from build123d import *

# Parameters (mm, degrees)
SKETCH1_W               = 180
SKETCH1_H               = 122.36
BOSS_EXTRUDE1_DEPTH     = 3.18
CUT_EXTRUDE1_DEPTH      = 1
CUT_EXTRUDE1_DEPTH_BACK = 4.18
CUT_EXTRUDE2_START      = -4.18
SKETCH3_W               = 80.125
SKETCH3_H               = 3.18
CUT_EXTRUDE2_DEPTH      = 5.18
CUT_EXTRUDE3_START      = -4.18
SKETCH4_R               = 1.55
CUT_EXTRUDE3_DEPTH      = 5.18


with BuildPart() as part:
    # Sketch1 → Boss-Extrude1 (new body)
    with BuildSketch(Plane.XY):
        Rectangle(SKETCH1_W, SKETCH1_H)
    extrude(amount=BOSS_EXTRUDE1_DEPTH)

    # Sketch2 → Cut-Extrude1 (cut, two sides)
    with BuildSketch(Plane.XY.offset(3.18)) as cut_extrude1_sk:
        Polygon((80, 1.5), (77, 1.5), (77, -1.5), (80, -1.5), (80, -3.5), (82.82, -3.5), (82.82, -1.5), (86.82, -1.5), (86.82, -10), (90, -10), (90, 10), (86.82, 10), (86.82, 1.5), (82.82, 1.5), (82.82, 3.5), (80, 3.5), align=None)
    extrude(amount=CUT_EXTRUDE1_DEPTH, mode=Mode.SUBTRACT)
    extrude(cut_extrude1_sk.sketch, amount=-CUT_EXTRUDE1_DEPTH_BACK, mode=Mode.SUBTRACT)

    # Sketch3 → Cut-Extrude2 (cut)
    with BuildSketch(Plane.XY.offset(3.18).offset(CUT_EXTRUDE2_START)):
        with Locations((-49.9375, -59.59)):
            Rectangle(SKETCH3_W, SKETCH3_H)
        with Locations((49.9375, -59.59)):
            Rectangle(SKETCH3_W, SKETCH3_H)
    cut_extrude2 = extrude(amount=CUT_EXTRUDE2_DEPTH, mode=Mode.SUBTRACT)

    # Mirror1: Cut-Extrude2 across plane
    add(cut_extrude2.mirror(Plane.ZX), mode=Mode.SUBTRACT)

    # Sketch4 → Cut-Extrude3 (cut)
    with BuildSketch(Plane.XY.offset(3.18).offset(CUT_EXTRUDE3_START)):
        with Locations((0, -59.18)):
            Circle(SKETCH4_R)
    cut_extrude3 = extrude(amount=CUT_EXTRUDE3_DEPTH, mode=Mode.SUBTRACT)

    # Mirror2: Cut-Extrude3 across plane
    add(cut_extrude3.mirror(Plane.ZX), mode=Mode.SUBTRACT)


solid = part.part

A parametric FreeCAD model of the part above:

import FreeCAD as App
import Part
import Sketcher

V = App.Vector
Q = App.Units.Quantity


def add_polygon(sketch, points):
    """Adds a closed chain of lines whose ends are joined by coincident constraints."""
    first, n = sketch.GeometryCount, len(points)
    for a, b in zip(points, points[1:] + points[:1]):
        sketch.addGeometry(Part.LineSegment(App.Vector(*a, 0), App.Vector(*b, 0)), False)
    for i in range(n):
        sketch.addConstraint(Sketcher.Constraint("Coincident", first + i, 2, first + (i + 1) % n, 1))

doc = App.newDocument("Part")
body = doc.addObject("PartDesign::Body", "Body")

sketch1 = body.newObject("Sketcher::SketchObject", "Sketch")
sketch1.AttachmentSupport = (doc.getObject("XY_Plane"), [""])
sketch1.MapMode = "FlatFace"
add_polygon(sketch1, [(-90, 61.18), (-90, -61.18), (90, -61.18), (90, 61.18)])
sketch1.addConstraint([
    Sketcher.Constraint("Vertical", 0),
    Sketcher.Constraint("Horizontal", 1),
    Sketcher.Constraint("Vertical", 2),
    Sketcher.Constraint("Horizontal", 3),
    Sketcher.Constraint("Symmetric", 0, 2, 2, 2, -1, 1),
    Sketcher.Constraint("DistanceX", 1, 1, 1, 2, Q("180 mm")),
    Sketcher.Constraint("DistanceY", 0, 2, 0, 1, Q("122.36 mm")),
])
pad1 = body.newObject("PartDesign::Pad", "Pad")
pad1.Profile = sketch1
pad1.Length = 3.18

sketch2 = body.newObject("Sketcher::SketchObject", "Sketch001")
sketch2.AttachmentSupport = (doc.getObject("XY_Plane"), [""])
sketch2.MapMode = "FlatFace"
sketch2.AttachmentOffset = App.Placement(V(0, 0, 3.18), App.Rotation())
add_polygon(sketch2, [(80, 1.5), (77, 1.5), (77, -1.5), (80, -1.5), (80, -3.5), (82.82, -3.5), (82.82, -1.5), (86.82, -1.5), (86.82, -10), (90, -10), (90, 10), (86.82, 10), (86.82, 1.5), (82.82, 1.5), (82.82, 3.5), (80, 3.5)])
sketch2.addConstraint([
    Sketcher.Constraint("Horizontal", 0),
    Sketcher.Constraint("Vertical", 1),
    Sketcher.Constraint("Horizontal", 2),
    Sketcher.Constraint("Vertical", 3),
    Sketcher.Constraint("Horizontal", 4),
    Sketcher.Constraint("Vertical", 5),
    Sketcher.Constraint("Horizontal", 6),
    Sketcher.Constraint("Vertical", 7),
    Sketcher.Constraint("Horizontal", 8),
    Sketcher.Constraint("Vertical", 9),
    Sketcher.Constraint("Horizontal", 10),
    Sketcher.Constraint("Vertical", 11),
    Sketcher.Constraint("Horizontal", 12),
    Sketcher.Constraint("Vertical", 13),
    Sketcher.Constraint("Horizontal", 14),
    Sketcher.Constraint("Vertical", 15),
    Sketcher.Constraint("Symmetric", 7, 2, 10, 2, -1),
    Sketcher.Constraint("Symmetric", 5, 2, 12, 2, -1),
    Sketcher.Constraint("Symmetric", 3, 2, 14, 2, -1),
    Sketcher.Constraint("Horizontal", 2, 2, 5, 2),
    Sketcher.Constraint("Horizontal", 0, 2, 11, 2),
    Sketcher.Constraint("Equal", 2, 1),
    Sketcher.Constraint("DistanceX", 0, 2, 0, 1, Q("3 mm")),
    Sketcher.Constraint("DistanceX", 6, 1, 6, 2, Q("4 mm")),
    Sketcher.Constraint("DistanceY", 3, 2, 3, 1, Q("2 mm")),
    Sketcher.Constraint("DistanceY", 9, 1, 9, 2, Q("20 mm")),
    Sketcher.Constraint("DistanceX", -1, 1, 0, 2, Q("77 mm")),
    Sketcher.Constraint("DistanceX", -1, 1, 8, 2, Q("90 mm")),
    Sketcher.Constraint("DistanceX", 4, 1, 4, 2, Q("2.82 mm")),
])
pocket1 = body.newObject("PartDesign::Pocket", "Pocket")
pocket1.Profile = sketch2
pocket1.Type = "ThroughAll"
pocket1.Midplane = True

sketch3 = body.newObject("Sketcher::SketchObject", "Sketch002")
sketch3.AttachmentSupport = (doc.getObject("XY_Plane"), [""])
sketch3.MapMode = "FlatFace"
sketch3.AttachmentOffset = App.Placement(V(0, 0, -1), App.Rotation())
add_polygon(sketch3, [(-90, -58), (-90, -61.18), (-9.875, -61.18), (-9.875, -58)])
add_polygon(sketch3, [(9.875, -58), (9.875, -61.18), (90, -61.18), (90, -58)])
sketch3.addConstraint([
    Sketcher.Constraint("Vertical", 0),
    Sketcher.Constraint("Horizontal", 1),
    Sketcher.Constraint("Vertical", 2),
    Sketcher.Constraint("Horizontal", 3),
    Sketcher.Constraint("Vertical", 4),
    Sketcher.Constraint("Horizontal", 5),
    Sketcher.Constraint("Vertical", 6),
    Sketcher.Constraint("Horizontal", 7),
    Sketcher.Constraint("Symmetric", 1, 2, 4, 2, -2),
    Sketcher.Constraint("Symmetric", 3, 2, 6, 2, -2),
    Sketcher.Constraint("DistanceX", 0, 2, -1, 1, Q("90 mm")),
    Sketcher.Constraint("DistanceY", 2, 2, -1, 1, Q("58 mm")),
    Sketcher.Constraint("DistanceY", 0, 2, 0, 1, Q("3.18 mm")),
    Sketcher.Constraint("DistanceX", 1, 1, 1, 2, Q("80.125 mm")),
])
pocket2 = body.newObject("PartDesign::Pocket", "Pocket001")
pocket2.Profile = sketch3
pocket2.Length = 5.18
pocket2.Reversed = True
doc.recompute()

mirrored = body.newObject("PartDesign::Mirrored", "Mirrored")
mirrored.Originals = [pocket2]
mirrored.MirrorPlane = (doc.getObject("XZ_Plane"), [""])
body.Tip = mirrored

sketch4 = body.newObject("Sketcher::SketchObject", "Sketch003")
sketch4.AttachmentSupport = (doc.getObject("XY_Plane"), [""])
sketch4.MapMode = "FlatFace"
sketch4.AttachmentOffset = App.Placement(V(0, 0, -1), App.Rotation())
sketch4.addGeometry(Part.Circle(V(0, -59.18, 0), V(0, 0, 1), 1.55), False)
sketch4.addConstraint([
    Sketcher.Constraint("PointOnObject", 0, 3, -2),
    Sketcher.Constraint("Diameter", 0, Q("3.1 mm")),
    Sketcher.Constraint("DistanceY", 0, 3, -1, 1, Q("59.18 mm")),
])
pocket3 = body.newObject("PartDesign::Pocket", "Pocket002")
pocket3.Profile = sketch4
pocket3.Length = 5.18
pocket3.Reversed = True
doc.recompute()

mirrored2 = body.newObject("PartDesign::Mirrored", "Mirrored001")
mirrored2.Originals = [pocket3]
mirrored2.MirrorPlane = (doc.getObject("XZ_Plane"), [""])
body.Tip = mirrored2

doc.recompute()
